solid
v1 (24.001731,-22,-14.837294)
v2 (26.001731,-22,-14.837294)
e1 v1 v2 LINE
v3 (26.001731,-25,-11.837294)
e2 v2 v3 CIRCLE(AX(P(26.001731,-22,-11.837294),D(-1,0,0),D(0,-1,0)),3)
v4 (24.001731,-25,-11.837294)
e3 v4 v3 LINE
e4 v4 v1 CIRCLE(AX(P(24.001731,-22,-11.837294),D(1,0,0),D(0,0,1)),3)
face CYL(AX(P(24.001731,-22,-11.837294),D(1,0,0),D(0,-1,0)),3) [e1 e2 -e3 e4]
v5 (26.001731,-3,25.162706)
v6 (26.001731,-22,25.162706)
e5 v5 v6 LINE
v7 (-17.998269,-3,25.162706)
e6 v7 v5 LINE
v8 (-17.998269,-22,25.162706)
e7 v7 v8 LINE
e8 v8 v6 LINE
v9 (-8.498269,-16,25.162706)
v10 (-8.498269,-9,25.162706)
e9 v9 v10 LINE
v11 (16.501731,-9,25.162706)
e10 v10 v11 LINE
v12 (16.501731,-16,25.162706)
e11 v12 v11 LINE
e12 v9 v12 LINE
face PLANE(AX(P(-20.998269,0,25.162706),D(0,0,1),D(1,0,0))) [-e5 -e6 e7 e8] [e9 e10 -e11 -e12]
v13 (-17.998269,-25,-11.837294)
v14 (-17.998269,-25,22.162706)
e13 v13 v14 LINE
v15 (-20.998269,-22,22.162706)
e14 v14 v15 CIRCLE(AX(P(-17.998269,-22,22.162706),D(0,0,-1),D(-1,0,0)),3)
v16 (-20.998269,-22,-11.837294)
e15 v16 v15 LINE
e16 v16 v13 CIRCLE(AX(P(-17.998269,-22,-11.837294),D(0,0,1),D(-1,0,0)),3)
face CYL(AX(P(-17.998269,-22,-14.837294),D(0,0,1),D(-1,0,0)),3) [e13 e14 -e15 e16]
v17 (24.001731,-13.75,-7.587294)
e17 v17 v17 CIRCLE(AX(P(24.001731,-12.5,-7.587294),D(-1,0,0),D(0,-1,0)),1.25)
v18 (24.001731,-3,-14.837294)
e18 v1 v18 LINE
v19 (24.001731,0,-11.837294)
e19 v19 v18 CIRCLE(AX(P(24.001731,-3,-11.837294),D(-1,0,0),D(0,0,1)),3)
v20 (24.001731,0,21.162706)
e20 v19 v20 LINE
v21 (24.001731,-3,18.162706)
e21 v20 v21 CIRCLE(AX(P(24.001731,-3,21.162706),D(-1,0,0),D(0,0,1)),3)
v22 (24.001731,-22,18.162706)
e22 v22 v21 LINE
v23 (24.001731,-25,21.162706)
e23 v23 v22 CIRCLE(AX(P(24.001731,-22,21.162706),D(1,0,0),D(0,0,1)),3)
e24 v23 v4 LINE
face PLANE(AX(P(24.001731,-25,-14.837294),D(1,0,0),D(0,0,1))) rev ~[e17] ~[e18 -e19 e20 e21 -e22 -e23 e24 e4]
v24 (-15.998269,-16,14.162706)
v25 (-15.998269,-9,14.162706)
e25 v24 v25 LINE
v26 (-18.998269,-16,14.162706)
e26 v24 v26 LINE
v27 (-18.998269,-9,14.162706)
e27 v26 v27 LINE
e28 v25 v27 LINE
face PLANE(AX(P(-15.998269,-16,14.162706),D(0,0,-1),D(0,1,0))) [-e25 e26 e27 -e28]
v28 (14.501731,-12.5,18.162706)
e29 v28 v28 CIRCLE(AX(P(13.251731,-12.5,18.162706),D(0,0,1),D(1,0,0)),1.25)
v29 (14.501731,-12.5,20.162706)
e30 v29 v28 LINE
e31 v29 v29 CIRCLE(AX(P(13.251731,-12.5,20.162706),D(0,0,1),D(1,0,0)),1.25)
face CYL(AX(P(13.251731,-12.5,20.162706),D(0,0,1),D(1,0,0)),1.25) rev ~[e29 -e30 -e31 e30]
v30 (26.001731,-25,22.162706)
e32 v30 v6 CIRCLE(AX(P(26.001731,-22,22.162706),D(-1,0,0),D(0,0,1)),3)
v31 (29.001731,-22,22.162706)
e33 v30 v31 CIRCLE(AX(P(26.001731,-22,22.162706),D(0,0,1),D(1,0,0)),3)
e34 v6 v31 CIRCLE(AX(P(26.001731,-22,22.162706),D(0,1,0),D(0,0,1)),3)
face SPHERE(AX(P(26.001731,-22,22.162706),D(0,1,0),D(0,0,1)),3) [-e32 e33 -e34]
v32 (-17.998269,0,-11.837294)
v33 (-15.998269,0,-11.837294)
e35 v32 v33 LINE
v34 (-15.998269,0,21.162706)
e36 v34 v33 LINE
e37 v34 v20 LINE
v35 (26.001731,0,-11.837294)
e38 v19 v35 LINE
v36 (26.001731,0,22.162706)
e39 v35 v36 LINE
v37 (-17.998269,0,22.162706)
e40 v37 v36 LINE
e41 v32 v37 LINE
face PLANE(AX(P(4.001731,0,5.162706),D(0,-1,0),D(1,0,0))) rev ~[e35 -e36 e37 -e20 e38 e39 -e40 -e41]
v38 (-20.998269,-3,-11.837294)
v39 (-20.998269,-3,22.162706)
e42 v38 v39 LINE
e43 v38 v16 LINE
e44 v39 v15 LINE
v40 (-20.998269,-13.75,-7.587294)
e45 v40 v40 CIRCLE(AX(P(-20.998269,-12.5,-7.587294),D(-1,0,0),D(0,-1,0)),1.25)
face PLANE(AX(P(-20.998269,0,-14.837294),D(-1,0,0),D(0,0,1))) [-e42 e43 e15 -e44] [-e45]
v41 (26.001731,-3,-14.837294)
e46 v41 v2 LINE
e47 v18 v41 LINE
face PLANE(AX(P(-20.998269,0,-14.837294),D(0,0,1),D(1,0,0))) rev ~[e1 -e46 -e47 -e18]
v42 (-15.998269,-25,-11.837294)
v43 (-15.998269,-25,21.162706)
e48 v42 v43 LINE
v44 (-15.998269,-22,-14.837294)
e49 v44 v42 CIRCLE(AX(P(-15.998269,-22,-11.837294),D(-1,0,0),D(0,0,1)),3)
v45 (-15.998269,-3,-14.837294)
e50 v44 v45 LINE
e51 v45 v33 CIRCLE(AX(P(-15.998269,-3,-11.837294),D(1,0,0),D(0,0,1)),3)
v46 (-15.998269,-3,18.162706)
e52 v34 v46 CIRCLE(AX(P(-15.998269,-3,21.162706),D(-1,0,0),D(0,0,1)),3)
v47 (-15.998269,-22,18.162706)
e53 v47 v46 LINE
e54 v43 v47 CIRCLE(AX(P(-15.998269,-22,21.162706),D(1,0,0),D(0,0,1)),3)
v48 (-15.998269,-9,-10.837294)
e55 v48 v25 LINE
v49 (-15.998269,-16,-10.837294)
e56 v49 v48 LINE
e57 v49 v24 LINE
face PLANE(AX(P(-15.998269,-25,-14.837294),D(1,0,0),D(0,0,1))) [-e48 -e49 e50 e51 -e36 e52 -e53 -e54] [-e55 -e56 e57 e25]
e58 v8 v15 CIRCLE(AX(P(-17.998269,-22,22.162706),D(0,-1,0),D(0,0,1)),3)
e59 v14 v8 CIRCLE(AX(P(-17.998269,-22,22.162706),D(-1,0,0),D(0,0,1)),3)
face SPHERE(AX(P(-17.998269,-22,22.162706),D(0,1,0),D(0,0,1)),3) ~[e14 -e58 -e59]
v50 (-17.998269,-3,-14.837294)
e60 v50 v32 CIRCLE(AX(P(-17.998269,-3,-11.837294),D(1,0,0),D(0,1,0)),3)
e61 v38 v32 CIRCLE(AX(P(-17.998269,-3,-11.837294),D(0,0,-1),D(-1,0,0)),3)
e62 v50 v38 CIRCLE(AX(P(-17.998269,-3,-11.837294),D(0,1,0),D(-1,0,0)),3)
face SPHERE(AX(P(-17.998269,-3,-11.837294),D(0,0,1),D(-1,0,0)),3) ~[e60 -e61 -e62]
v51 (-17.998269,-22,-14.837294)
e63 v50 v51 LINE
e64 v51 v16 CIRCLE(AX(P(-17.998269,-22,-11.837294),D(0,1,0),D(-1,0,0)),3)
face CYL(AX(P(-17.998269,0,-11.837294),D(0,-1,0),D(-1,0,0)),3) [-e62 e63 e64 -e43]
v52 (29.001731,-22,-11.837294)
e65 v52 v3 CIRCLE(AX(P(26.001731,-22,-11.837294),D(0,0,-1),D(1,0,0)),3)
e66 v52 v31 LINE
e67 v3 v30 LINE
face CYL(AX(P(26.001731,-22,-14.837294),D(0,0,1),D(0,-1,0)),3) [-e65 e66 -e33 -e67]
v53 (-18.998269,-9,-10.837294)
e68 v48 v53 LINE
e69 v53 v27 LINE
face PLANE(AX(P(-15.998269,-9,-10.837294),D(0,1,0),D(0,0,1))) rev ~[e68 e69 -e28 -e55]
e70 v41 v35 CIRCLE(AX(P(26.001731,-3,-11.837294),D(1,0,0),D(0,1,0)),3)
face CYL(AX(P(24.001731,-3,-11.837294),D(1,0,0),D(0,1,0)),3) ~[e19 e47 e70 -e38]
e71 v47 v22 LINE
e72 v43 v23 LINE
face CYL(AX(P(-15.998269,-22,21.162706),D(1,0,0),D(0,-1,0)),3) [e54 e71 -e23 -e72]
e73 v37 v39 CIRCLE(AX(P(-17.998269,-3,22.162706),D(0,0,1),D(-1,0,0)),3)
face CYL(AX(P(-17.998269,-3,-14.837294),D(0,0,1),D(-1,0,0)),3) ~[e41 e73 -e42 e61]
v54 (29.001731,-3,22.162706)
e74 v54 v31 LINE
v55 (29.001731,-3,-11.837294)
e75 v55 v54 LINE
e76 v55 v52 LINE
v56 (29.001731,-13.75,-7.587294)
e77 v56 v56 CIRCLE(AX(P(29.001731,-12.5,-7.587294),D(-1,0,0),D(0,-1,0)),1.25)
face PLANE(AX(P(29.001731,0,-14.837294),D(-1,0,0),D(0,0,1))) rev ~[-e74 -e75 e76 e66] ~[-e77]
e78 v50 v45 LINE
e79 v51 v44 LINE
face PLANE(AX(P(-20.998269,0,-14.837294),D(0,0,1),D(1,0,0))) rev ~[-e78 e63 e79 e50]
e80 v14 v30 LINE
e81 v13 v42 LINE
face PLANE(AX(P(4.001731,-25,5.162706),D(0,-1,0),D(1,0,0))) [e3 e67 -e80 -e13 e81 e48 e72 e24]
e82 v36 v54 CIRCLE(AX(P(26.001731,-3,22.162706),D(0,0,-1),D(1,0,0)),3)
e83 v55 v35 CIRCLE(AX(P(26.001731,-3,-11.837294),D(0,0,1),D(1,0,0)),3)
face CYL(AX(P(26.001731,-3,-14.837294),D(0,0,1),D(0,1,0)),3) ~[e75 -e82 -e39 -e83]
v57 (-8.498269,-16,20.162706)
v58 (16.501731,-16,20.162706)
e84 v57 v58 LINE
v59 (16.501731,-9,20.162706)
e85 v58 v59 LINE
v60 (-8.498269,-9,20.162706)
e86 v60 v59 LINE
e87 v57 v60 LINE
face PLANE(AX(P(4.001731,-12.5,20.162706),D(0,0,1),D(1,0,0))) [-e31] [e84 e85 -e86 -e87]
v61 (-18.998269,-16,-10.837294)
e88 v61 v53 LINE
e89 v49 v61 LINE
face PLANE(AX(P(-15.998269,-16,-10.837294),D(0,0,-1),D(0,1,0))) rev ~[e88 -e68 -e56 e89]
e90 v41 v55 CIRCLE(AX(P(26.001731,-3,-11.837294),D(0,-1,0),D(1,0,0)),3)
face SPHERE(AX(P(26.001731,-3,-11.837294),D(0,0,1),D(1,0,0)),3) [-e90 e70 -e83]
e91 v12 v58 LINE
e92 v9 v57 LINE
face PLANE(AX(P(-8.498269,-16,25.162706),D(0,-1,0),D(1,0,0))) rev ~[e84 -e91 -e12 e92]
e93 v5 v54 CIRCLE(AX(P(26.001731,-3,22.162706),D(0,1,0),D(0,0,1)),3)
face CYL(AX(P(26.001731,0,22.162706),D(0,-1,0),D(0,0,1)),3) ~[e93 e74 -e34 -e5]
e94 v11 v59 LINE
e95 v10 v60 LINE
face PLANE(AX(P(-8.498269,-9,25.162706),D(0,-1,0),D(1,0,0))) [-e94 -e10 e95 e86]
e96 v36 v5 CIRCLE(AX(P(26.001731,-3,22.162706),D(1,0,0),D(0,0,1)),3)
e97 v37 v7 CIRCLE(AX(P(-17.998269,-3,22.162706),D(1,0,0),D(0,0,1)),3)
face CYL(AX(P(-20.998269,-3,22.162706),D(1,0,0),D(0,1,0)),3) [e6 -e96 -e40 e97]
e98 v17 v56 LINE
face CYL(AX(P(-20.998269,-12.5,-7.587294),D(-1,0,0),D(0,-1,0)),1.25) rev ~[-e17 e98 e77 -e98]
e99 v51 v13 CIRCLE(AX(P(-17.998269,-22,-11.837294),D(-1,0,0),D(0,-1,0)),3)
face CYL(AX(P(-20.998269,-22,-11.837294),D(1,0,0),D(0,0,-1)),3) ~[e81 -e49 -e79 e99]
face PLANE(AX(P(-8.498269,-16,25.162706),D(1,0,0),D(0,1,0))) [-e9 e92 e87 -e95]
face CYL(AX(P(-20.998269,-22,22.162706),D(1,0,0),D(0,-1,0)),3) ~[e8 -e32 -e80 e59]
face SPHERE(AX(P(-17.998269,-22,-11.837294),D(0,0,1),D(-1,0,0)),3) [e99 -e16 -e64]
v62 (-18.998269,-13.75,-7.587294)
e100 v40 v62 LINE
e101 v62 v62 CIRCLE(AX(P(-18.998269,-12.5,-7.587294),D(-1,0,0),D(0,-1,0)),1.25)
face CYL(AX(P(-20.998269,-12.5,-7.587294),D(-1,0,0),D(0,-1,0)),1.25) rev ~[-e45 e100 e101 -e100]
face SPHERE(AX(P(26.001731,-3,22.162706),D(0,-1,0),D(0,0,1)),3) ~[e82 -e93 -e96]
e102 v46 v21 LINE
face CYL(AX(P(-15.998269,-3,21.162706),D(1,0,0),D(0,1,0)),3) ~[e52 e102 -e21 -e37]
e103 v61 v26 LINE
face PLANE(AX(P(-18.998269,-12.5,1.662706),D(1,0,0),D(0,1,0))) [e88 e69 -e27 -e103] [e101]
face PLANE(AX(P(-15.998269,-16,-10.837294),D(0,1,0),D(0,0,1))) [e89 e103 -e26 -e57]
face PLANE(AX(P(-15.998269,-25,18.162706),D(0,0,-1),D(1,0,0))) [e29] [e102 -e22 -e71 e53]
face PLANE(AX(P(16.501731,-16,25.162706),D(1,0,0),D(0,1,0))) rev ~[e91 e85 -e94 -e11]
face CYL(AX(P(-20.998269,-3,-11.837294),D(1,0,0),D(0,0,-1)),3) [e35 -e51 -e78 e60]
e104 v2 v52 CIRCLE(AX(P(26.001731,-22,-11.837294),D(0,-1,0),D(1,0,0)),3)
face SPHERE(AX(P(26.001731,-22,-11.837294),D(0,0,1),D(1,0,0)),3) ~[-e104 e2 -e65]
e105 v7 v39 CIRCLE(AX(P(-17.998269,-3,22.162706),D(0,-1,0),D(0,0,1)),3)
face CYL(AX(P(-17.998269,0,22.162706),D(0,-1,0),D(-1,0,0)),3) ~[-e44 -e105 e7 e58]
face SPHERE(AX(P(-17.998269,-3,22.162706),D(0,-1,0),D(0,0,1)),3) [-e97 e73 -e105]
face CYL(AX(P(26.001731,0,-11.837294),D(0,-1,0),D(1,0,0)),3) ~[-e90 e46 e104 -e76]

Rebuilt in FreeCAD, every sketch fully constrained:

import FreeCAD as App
import Part
import Sketcher
Q = App.Units.Quantity


def edges_at(feature, points):
    """Names of the edges that pass closest to the given points."""
    edges = feature.Shape.Edges
    near = lambda p: min(range(len(edges)), key=lambda i: edges[i].distToShape(Part.Vertex(*p))[0])
    return sorted({f"Edge{near(p) + 1}" for p in points})


def add_polygon(sketch, points):
    """Adds a closed chain of lines whose ends are joined by coincident constraints."""
    first, n = sketch.GeometryCount, len(points)
    for a, b in zip(points, points[1:] + points[:1]):
        sketch.addGeometry(Part.LineSegment(App.Vector(*a, 0), App.Vector(*b, 0)), False)
    for i in range(n):
        sketch.addConstraint(Sketcher.Constraint("Coincident", first + i, 2, first + (i + 1) % n, 1))

doc = App.newDocument("Part")
params = doc.addObject("Spreadsheet::Sheet", "Params")
for row, (alias, value) in enumerate([
    ("sketch1_width", "50 mm"),
    ("sketch1_height", "40 mm"),
    ("pad1_length", "25 mm"),
    ("sketch2_width", "40 mm"),
    ("sketch2_height", "33 mm"),
    ("sketch3_width", "7 mm"),
    ("sketch3_height", "25 mm"),
    ("pocket2_length", "3 mm"),
    ("sketch4_diameter", "2.5 mm"),
    ("sketch5_width", "25 mm"),
    ("sketch5_height", "7 mm"),
    ("pocket4_length", "5 mm"),
    ("sketch6_diameter", "2.5 mm"),
    ("pocket5_length", "2 mm"),
    ("fillet_radius", "3 mm"),
], start=1):
    params.set(f"A{row}", alias)
    params.set(f"B{row}", "=" + value)
    params.setAlias(f"B{row}", alias)

body = doc.addObject("PartDesign::Body", "Body")

sketch1 = body.newObject("Sketcher::SketchObject", "Sketch")
sketch1.AttachmentSupport = (doc.getObject("XZ_Plane"), [""])
sketch1.MapMode = "FlatFace"
add_polygon(sketch1, [(-21, 25), (-21, -15), (29, -15), (29, 25)])
sketch1.addConstraint([
    Sketcher.Constraint("Vertical", 0),
    Sketcher.Constraint("Horizontal", 1),
    Sketcher.Constraint("Vertical", 2),
    Sketcher.Constraint("Horizontal", 3),
    Sketcher.Constraint("DistanceX", 1, 1, 1, 2, Q("50 mm")),
    Sketcher.Constraint("DistanceY", 0, 2, 0, 1, Q("40 mm")),
    Sketcher.Constraint("DistanceX", 0, 2, -1, 1, Q("20.998269 mm")),
    Sketcher.Constraint("DistanceY", 0, 2, -1, 1, Q("14.837294 mm")),
])
sketch1.setExpression("Constraints[8]", "Params.sketch1_width")
sketch1.setExpression("Constraints[9]", "Params.sketch1_height")
pad1 = body.newObject("PartDesign::Pad", "Pad")
pad1.Profile = sketch1
pad1.setExpression("Length", "Params.pad1_length")

sketch2 = body.newObject("Sketcher::SketchObject", "Sketch001")
sketch2.AttachmentSupport = (doc.getObject("XZ_Plane"), [""])
sketch2.MapMode = "FlatFace"
sketch2.AttachmentOffset = App.Placement(App.Vector(0, 0, 25), App.Rotation())
add_polygon(sketch2, [(-16, 18), (-16, -15), (24, -15), (24, 18)])
sketch2.addConstraint([
    Sketcher.Constraint("Vertical", 0),
    Sketcher.Constraint("Horizontal", 1),
    Sketcher.Constraint("Vertical", 2),
    Sketcher.Constraint("Horizontal", 3),
    Sketcher.Constraint("DistanceX", 1, 1, 1, 2, Q("40 mm")),
    Sketcher.Constraint("DistanceY", 0, 2, 0, 1, Q("33 mm")),
    Sketcher.Constraint("DistanceX", 0, 2, -1, 1, Q("15.998269 mm")),
    Sketcher.Constraint("DistanceY", 0, 2, -1, 1, Q("14.837294 mm")),
])
sketch2.setExpression("Constraints[8]", "Params.sketch2_width")
sketch2.setExpression("Constraints[9]", "Params.sketch2_height")
pocket1 = body.newObject("PartDesign::Pocket", "Pocket")
pocket1.Profile = sketch2
pocket1.Type = "ThroughAll"

sketch3 = body.newObject("Sketcher::SketchObject", "Sketch002")
sketch3.AttachmentSupport = (doc.getObject("YZ_Plane"), [""])
sketch3.MapMode = "FlatFace"
sketch3.AttachmentOffset = App.Placement(App.Vector(0, 0, -15.998269), App.Rotation())
add_polygon(sketch3, [(-16, 14), (-16, -11), (-9, -11), (-9, 14)])
sketch3.addConstraint([
    Sketcher.Constraint("Vertical", 0),
    Sketcher.Constraint("Horizontal", 1),
    Sketcher.Constraint("Vertical", 2),
    Sketcher.Constraint("Horizontal", 3),
    Sketcher.Constraint("DistanceX", 1, 1, 1, 2, Q("7 mm")),
    Sketcher.Constraint("DistanceY", 0, 2, 0, 1, Q("25 mm")),
    Sketcher.Constraint("DistanceX", 0, 2, -1, 1, Q("16 mm")),
    Sketcher.Constraint("DistanceY", 0, 2, -1, 1, Q("10.837294 mm")),
])
sketch3.setExpression("Constraints[8]", "Params.sketch3_width")
sketch3.setExpression("Constraints[9]", "Params.sketch3_height")
pocket2 = body.newObject("PartDesign::Pocket", "Pocket001")
pocket2.Profile = sketch3
pocket2.setExpression("Length", "Params.pocket2_length")

sketch4 = body.newObject("Sketcher::SketchObject", "Sketch003")
sketch4.AttachmentSupport = (doc.getObject("YZ_Plane"), [""])
sketch4.MapMode = "FlatFace"
sketch4.AttachmentOffset = App.Placement(App.Vector(0, 0, -20.998269), App.Rotation())
sketch4.addGeometry(Part.Circle(App.Vector(-12.5, -7.6, 0), App.Vector(0, 0, 1), 1.2), False)
sketch4.addConstraint([
    Sketcher.Constraint("Diameter", 0, Q("2.5 mm")),
    Sketcher.Constraint("DistanceX", 0, 3, -1, 1, Q("12.5 mm")),
    Sketcher.Constraint("DistanceY", 0, 3, -1, 1, Q("7.587294 mm")),
])
sketch4.setExpression("Constraints[0]", "Params.sketch4_diameter")
pocket3 = body.newObject("PartDesign::Pocket", "Pocket002")
pocket3.Profile = sketch4
pocket3.Type = "ThroughAll"
pocket3.Reversed = True

sketch5 = body.newObject("Sketcher::SketchObject", "Sketch004")
sketch5.AttachmentSupport = (doc.getObject("XY_Plane"), [""])
sketch5.MapMode = "FlatFace"
sketch5.AttachmentOffset = App.Placement(App.Vector(0, 0, 25.162706), App.Rotation())
add_polygon(sketch5, [(-8, -9), (-8, -16), (17, -16), (17, -9)])
sketch5.addConstraint([
    Sketcher.Constraint("Vertical", 0),
    Sketcher.Constraint("Horizontal", 1),
    Sketcher.Constraint("Vertical", 2),
    Sketcher.Constraint("Horizontal", 3),
    Sketcher.Constraint("DistanceX", 1, 1, 1, 2, Q("25 mm")),
    Sketcher.Constraint("DistanceY", 0, 2, 0, 1, Q("7 mm")),
    Sketcher.Constraint("DistanceY", 0, 2, -1, 1, Q("16 mm")),
    Sketcher.Constraint("DistanceX", 0, 2, -1, 1, Q("8.498269 mm")),
])
sketch5.setExpression("Constraints[8]", "Params.sketch5_width")
sketch5.setExpression("Constraints[9]", "Params.sketch5_height")
pocket4 = body.newObject("PartDesign::Pocket", "Pocket003")
pocket4.Profile = sketch5
pocket4.setExpression("Length", "Params.pocket4_length")

sketch6 = body.newObject("Sketcher::SketchObject", "Sketch005")
sketch6.AttachmentSupport = (doc.getObject("XY_Plane"), [""])
sketch6.MapMode = "FlatFace"
sketch6.AttachmentOffset = App.Placement(App.Vector(0, 0, 20.162706), App.Rotation())
sketch6.addGeometry(Part.Circle(App.Vector(13.3, -12.5, 0), App.Vector(0, 0, 1), 1.2), False)
sketch6.addConstraint([
    Sketcher.Constraint("Diameter", 0, Q("2.5 mm")),
    Sketcher.Constraint("DistanceY", 0, 3, -1, 1, Q("12.5 mm")),
    Sketcher.Constraint("DistanceX", -1, 1, 0, 3, Q("13.251731 mm")),
])
sketch6.setExpression("Constraints[0]", "Params.sketch6_diameter")
pocket5 = body.newObject("PartDesign::Pocket", "Pocket004")
pocket5.Profile = sketch6
pocket5.setExpression("Length", "Params.pocket5_length")
doc.recompute()

fillet = body.newObject("PartDesign::Fillet", "Fillet")
fillet.Base = (pocket5, edges_at(pocket5, [
    (29.002, -12.5, 25.163),
    (-20.998, -12.5, 25.163),
    (4.002, 0, 25.163),
    (4.002, -25, 25.163),
    (29.002, -25, 5.163),
    (29.002, 0, 5.163),
    (-20.998, -25, 5.163),
    (-20.998, 0, 5.163),
    (-20.998, -12.5, -14.837),
    (29.002, -12.5, -14.837),
    (26.502, -25, -14.837),
    (-18.498, -25, -14.837),
    (26.502, 0, -14.837),
    (-18.498, 0, -14.837),
    (4.002, -25, 18.163),
    (4.002, 0, 18.163),
]))
fillet.setExpression("Radius", "Params.fillet_radius")

doc.recompute()
